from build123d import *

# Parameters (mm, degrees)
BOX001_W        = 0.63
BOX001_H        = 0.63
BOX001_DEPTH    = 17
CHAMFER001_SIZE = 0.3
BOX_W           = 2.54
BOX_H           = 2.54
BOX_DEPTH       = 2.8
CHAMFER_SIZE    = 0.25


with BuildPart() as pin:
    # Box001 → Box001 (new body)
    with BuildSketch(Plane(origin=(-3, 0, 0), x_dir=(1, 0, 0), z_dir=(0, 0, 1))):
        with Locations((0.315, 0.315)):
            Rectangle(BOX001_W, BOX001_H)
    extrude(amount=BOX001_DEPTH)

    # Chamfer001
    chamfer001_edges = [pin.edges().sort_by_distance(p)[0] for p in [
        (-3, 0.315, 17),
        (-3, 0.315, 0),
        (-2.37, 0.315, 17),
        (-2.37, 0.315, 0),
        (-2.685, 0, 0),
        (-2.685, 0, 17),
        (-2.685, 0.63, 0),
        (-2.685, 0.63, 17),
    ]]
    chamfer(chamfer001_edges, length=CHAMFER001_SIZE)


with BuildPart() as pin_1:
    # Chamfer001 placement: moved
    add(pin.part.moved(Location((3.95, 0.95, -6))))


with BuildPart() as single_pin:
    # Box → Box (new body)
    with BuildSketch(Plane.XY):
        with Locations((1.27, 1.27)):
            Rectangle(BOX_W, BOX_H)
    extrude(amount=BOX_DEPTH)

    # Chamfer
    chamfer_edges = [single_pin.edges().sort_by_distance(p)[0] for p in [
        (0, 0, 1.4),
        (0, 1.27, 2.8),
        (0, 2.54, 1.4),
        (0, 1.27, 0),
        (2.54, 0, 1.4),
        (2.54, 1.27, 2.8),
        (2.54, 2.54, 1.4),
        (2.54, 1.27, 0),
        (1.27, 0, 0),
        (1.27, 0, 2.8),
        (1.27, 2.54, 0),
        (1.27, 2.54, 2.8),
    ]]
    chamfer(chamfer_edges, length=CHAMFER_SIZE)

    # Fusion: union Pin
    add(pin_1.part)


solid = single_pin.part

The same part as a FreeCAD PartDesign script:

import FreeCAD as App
import Part
import Sketcher
from FreeCAD import Vector


def edges_at(feature, points):
    """Names of the edges that pass closest to the given points."""
    edges = feature.Shape.Edges
    near = lambda p: min(range(len(edges)), key=lambda i: edges[i].distToShape(Part.Vertex(*p))[0])
    return sorted({f"Edge{near(p) + 1}" for p in points})


def add_polygon(sketch, points):
    """Adds a closed chain of lines whose ends are joined by coincident constraints."""
    first, n = sketch.GeometryCount, len(points)
    for a, b in zip(points, points[1:] + points[:1]):
        sketch.addGeometry(Part.LineSegment(App.Vector(*a, 0), App.Vector(*b, 0)), False)
    for i in range(n):
        sketch.addConstraint(Sketcher.Constraint("Coincident", first + i, 2, first + (i + 1) % n, 1))

doc = App.newDocument("Part")
body = doc.addObject("PartDesign::Body", "Body")

# Sketch on XY plane
sketch1 = body.newObject("Sketcher::SketchObject", "Sketch")
sketch1.AttachmentSupport = (doc.getObject("XY_Plane"), [""])
sketch1.MapMode = "FlatFace"
add_polygon(sketch1, [(-3, 0.6), (-3, 0), (-2.4, 0), (-2.4, 0.6)])  # lines 0-3
sketch1.addConstraint([
    Sketcher.Constraint("Vertical", 0),
    Sketcher.Constraint("Horizontal", 1),
    Sketcher.Constraint("Vertical", 2),
    Sketcher.Constraint("Horizontal", 3),
    Sketcher.Constraint("PointOnObject", 0, 2, -1),
    Sketcher.Constraint("Equal", 3, 0),
    Sketcher.Constraint("DistanceX", 0, 2, -1, 1, 3.0),
    Sketcher.Constraint("DistanceX", 1, 1, 1, 2, 0.63),
])
pad1 = body.newObject("PartDesign::Pad", "Pad")
pad1.Profile = sketch1
pad1.Length = 17
doc.recompute()

chamfer = body.newObject("PartDesign::Chamfer", "Chamfer")
chamfer.Base = (pad1, edges_at(pad1, [
    (-3, 0.315, 17),
    (-3, 0.315, 0),
    (-2.37, 0.315, 17),
    (-2.37, 0.315, 0),
    (-2.685, 0, 0),
    (-2.685, 0, 17),
    (-2.685, 0.63, 0),
    (-2.685, 0.63, 17),
]))
chamfer.Size = 0.3
body2 = doc.addObject("PartDesign::Body", "Body001")
doc.recompute()

body.Placement = App.Placement(Vector(3.95, 0.95, -6), App.Rotation(Vector(0, 0, 1), 0))
boolean = body2.newObject("PartDesign::Boolean", "Boolean")
boolean.Type = "Fuse"
boolean.addObjects([body])
body3 = doc.addObject("PartDesign::Body", "Body002")

# Sketch on XY plane
sketch2 = body3.newObject("Sketcher::SketchObject", "Sketch001")
sketch2.AttachmentSupport = (doc.getObject("XY_Plane002"), [""])
sketch2.MapMode = "FlatFace"
add_polygon(sketch2, [(0, 2.5), (0, 0), (2.5, 0), (2.5, 2.5)])  # lines 0-3
sketch2.addConstraint([
    Sketcher.Constraint("Vertical", 0),
    Sketcher.Constraint("Horizontal", 1),
    Sketcher.Constraint("Vertical", 2),
    Sketcher.Constraint("Horizontal", 3),
    Sketcher.Constraint("Coincident", 0, 2, -1, 1),
    Sketcher.Constraint("Equal", 3, 0),
    Sketcher.Constraint("DistanceX", 1, 1, 1, 2, 2.54),
])
pad2 = body3.newObject("PartDesign::Pad", "Pad001")
pad2.Profile = sketch2
pad2.Length = 2.8
doc.recompute()

chamfer2 = body3.newObject("PartDesign::Chamfer", "Chamfer001")
chamfer2.Base = (pad2, ["Edge1"])
chamfer2.UseAllEdges = True
chamfer2.Size = 0.25
doc.recompute()

boolean2 = body3.newObject("PartDesign::Boolean", "Boolean001")
boolean2.Type = "Fuse"
boolean2.addObjects([body2])

doc.recompute()
